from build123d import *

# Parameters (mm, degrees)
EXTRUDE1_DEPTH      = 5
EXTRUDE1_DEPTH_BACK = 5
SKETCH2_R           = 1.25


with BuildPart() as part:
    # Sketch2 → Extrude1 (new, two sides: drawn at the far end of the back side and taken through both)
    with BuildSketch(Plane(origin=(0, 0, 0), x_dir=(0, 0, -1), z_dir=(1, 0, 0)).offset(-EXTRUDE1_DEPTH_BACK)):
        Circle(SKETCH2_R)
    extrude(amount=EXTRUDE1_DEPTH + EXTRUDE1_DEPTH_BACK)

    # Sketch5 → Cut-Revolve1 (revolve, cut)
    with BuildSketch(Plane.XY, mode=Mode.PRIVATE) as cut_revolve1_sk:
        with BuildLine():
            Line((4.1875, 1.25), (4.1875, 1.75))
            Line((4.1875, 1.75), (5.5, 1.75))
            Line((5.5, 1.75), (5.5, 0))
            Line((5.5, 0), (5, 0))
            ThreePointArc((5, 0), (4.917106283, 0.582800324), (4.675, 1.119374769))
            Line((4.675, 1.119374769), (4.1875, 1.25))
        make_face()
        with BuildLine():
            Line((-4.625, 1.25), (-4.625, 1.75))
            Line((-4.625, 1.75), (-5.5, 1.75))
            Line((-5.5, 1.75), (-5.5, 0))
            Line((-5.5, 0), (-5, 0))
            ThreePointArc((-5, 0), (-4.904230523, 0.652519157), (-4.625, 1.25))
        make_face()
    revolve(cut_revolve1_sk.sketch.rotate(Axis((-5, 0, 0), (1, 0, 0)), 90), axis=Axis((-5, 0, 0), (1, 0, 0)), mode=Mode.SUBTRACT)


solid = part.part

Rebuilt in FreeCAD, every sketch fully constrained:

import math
import FreeCAD as App
import Part
import Sketcher
Q = App.Units.Quantity

doc = App.newDocument("Part")
body = doc.addObject("PartDesign::Body", "Body")

# Sketch on YZ plane
sketch1 = body.newObject("Sketcher::SketchObject", "Sketch")
sketch1.AttachmentSupport = (doc.getObject("YZ_Plane"), [""])
sketch1.MapMode = "FlatFace"
sketch1.addGeometry(Part.Circle(App.Vector(0, 0, 0), App.Vector(0, 0, 1), 1.2), False)
sketch1.addConstraint(Sketcher.Constraint("Coincident", 0, 3, -1, 1))
sketch1.addConstraint(Sketcher.Constraint("Diameter", 0, 2.5))
pad1 = body.newObject("PartDesign::Pad", "Pad")
pad1.Profile = sketch1
pad1.Type = "TwoLengths"
pad1.Length = 5
pad1.Length2 = 5

# Sketch on XY plane
sketch2 = body.newObject("Sketcher::SketchObject", "Sketch001")
sketch2.AttachmentSupport = (doc.getObject("XY_Plane"), [""])
sketch2.MapMode = "FlatFace"
sketch2.addGeometry(Part.LineSegment(App.Vector(4.2, 1.8, 0), App.Vector(4.2, 1.2, 0)), False)
sketch2.addGeometry(Part.LineSegment(App.Vector(4.2, 1.2, 0), App.Vector(4.7, 1.1, 0)), False)
sketch2.addGeometry(Part.ArcOfCircle(Part.Circle(App.Vector(2.9, 0, 0), App.Vector(0, 0, 1), 2.1), math.radians(0), math.radians(32)), False)
sketch2.addGeometry(Part.LineSegment(App.Vector(5, 0, 0), App.Vector(5.5, 0, 0)), False)
sketch2.addGeometry(Part.LineSegment(App.Vector(5.5, 0, 0), App.Vector(5.5, 1.8, 0)), False)
sketch2.addGeometry(Part.LineSegment(App.Vector(5.5, 1.8, 0), App.Vector(4.2, 1.8, 0)), False)
sketch2.addGeometry(Part.LineSegment(App.Vector(-4.6, 1.2, 0), App.Vector(-4.6, 1.8, 0)), False)
sketch2.addGeometry(Part.LineSegment(App.Vector(-4.6, 1.8, 0), App.Vector(-5.5, 1.8, 0)), False)
sketch2.addGeometry(Part.LineSegment(App.Vector(-5.5, 1.8, 0), App.Vector(-5.5, 0, 0)), False)
sketch2.addGeometry(Part.LineSegment(App.Vector(-5.5, 0, 0), App.Vector(-5, 0, 0)), False)
sketch2.addGeometry(Part.ArcOfCircle(Part.Circle(App.Vector(-2.7, 0, 0), App.Vector(0, 0, 1), 2.3), math.radians(147), math.radians(180)), False)
sketch2.addConstraint(Sketcher.Constraint("Coincident", 0, 2, 1, 1))
sketch2.addConstraint(Sketcher.Constraint("Coincident", 1, 2, 2, 2))
sketch2.addConstraint(Sketcher.Constraint("Coincident", 2, 1, 3, 1))
sketch2.addConstraint(Sketcher.Constraint("Coincident", 3, 2, 4, 1))
sketch2.addConstraint(Sketcher.Constraint("Coincident", 4, 2, 5, 1))
sketch2.addConstraint(Sketcher.Constraint("Coincident", 5, 2, 0, 1))
sketch2.addConstraint(Sketcher.Constraint("Coincident", 6, 2, 7, 1))
sketch2.addConstraint(Sketcher.Constraint("Coincident", 7, 2, 8, 1))
sketch2.addConstraint(Sketcher.Constraint("Coincident", 8, 2, 9, 1))
sketch2.addConstraint(Sketcher.Constraint("Coincident", 9, 2, 10, 2))
sketch2.addConstraint(Sketcher.Constraint("Coincident", 10, 1, 6, 1))
sketch2.addConstraint(Sketcher.Constraint("Vertical", 0))
sketch2.addConstraint(Sketcher.Constraint("Horizontal", 3))
sketch2.addConstraint(Sketcher.Constraint("Vertical", 4))
sketch2.addConstraint(Sketcher.Constraint("Horizontal", 5))
sketch2.addConstraint(Sketcher.Constraint("Vertical", 6))
sketch2.addConstraint(Sketcher.Constraint("Horizontal", 7))
sketch2.addConstraint(Sketcher.Constraint("Vertical", 8))
sketch2.addConstraint(Sketcher.Constraint("Horizontal", 9))
sketch2.addConstraint(Sketcher.Constraint("Symmetric", 3, 2, 8, 2, -1, 1))
sketch2.addConstraint(Sketcher.Constraint("Symmetric", 2, 1, 9, 2, -2))
sketch2.addConstraint(Sketcher.Constraint("PointOnObject", 2, 3, -1))
sketch2.addConstraint(Sketcher.Constraint("PointOnObject", 10, 3, -1))
sketch2.addConstraint(Sketcher.Constraint("Horizontal", 5, 2, 6, 2))
sketch2.addConstraint(Sketcher.Constraint("Horizontal", 0, 2, 10, 1))
sketch2.addConstraint(Sketcher.Constraint("Equal", 9, 0))
sketch2.addConstraint(Sketcher.Constraint("Angle", 1, Q("-15 deg")))
sketch2.addConstraint(Sketcher.Constraint("DistanceX", 3, 1, 3, 2, 0.5))
sketch2.addConstraint(Sketcher.Constraint("DistanceX", -1, 1, 2, 1, 5.0))
sketch2.addConstraint(Sketcher.Constraint("DistanceY", 4, 1, 4, 2, 1.75))
sketch2.addConstraint(Sketcher.Constraint("DistanceX", 6, 2, 1, 2, 9.3))
sketch2.addConstraint(Sketcher.Constraint("DistanceX", 7, 2, 7, 1, 0.875))
sketch2.addConstraint(Sketcher.Constraint("DistanceX", 5, 2, 5, 1, 1.3125))
groove = body.newObject("PartDesign::Groove", "Groove")
groove.Profile = sketch2
groove.ReferenceAxis = (sketch2, ["H_Axis"])
groove.Angle = 360

doc.recompute()
